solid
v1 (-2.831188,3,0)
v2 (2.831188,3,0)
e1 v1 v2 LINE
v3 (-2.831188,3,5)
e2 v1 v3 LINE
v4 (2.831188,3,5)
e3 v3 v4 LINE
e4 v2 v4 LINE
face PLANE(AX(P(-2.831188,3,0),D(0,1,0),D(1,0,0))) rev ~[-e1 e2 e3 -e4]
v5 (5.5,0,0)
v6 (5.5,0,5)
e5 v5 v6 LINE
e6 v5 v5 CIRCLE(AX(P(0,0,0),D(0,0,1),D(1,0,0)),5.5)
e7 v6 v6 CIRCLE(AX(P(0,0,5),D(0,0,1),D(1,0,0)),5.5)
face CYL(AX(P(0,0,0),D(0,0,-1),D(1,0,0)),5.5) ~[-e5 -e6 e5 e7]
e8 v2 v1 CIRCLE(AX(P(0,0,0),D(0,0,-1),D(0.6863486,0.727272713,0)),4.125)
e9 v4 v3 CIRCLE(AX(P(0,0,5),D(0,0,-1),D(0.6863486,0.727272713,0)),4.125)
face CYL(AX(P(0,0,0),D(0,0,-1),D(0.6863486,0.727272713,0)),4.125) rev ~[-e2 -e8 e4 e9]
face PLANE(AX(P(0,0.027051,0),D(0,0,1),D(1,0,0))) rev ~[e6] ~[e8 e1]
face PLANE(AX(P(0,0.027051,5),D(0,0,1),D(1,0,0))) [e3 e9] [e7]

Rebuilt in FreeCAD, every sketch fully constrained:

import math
import FreeCAD as App
import Part
import Sketcher
from FreeCAD import Vector

doc = App.newDocument("Part")
body = doc.addObject("PartDesign::Body", "Body")

# Sketch on XY plane
sketch1 = body.newObject("Sketcher::SketchObject", "Sketch")
sketch1.AttachmentSupport = (doc.getObject("XY_Plane"), [""])
sketch1.MapMode = "FlatFace"
sketch1.addGeometry([
    Part.Circle(Vector(0, 0, 0), Vector(0, 0, 1), 5.5),
    Part.ArcOfCircle(Part.Circle(Vector(0, 0, 0), Vector(0, 0, 1), 4.125), math.radians(133.341759), math.radians(406.658241)),
    Part.LineSegment(Vector(-2.831188, 3, 0), Vector(2.831188, 3, 0)),
], False)
sketch1.addConstraint([
    Sketcher.Constraint("Coincident", 1, 1, 2, 1),
    Sketcher.Constraint("Coincident", 2, 2, 1, 2),
    Sketcher.Constraint("Horizontal", 2),
    Sketcher.Constraint("Coincident", 0, 3, -1, 1),
    Sketcher.Constraint("Coincident", 1, 3, -1, 1),
    Sketcher.Constraint("Diameter", 0, 11.0),
    Sketcher.Constraint("DistanceY", -1, 1, 1, 1, 3.0),
    Sketcher.Constraint("Radius", 1, 4.125),
])
pad1 = body.newObject("PartDesign::Pad", "Pad")
pad1.Profile = sketch1
pad1.Length = 5

doc.recompute()
